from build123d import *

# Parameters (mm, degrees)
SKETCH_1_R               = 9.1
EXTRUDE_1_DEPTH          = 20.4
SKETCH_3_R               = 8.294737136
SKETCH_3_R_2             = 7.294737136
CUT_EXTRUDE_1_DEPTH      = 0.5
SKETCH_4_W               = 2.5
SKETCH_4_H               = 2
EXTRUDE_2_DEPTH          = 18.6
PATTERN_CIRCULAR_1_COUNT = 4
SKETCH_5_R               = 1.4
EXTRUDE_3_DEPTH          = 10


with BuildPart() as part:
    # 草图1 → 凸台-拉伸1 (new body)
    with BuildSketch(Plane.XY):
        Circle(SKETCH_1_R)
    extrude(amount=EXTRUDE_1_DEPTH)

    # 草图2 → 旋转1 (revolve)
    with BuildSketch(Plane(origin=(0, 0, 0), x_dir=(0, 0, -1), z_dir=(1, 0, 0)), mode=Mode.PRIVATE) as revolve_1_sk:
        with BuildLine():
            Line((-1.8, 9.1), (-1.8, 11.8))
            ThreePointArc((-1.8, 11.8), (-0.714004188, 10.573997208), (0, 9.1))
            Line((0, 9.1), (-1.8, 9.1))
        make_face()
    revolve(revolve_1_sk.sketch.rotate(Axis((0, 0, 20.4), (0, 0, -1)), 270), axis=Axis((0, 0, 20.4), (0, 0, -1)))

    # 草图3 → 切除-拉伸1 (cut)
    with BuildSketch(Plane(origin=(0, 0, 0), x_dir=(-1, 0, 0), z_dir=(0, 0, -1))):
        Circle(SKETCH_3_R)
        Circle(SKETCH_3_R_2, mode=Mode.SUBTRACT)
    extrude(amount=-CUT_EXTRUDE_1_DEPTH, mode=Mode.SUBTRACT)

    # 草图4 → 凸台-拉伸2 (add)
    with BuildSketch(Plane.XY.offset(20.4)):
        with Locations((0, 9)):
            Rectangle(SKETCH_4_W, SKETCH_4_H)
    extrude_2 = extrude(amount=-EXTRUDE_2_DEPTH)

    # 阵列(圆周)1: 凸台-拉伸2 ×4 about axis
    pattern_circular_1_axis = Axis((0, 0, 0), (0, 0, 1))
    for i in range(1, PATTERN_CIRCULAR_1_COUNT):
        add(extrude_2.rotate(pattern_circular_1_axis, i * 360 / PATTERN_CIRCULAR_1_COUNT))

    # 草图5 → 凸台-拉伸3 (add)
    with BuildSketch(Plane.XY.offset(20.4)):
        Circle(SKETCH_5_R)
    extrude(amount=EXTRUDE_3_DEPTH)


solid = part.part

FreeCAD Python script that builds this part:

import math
import FreeCAD as App
import Part
import Sketcher
Q = App.Units.Quantity


def add_polygon(sketch, points):
    """Adds a closed chain of lines whose ends are joined by coincident constraints."""
    first, n = sketch.GeometryCount, len(points)
    for a, b in zip(points, points[1:] + points[:1]):
        sketch.addGeometry(Part.LineSegment(App.Vector(*a, 0), App.Vector(*b, 0)), False)
    for i in range(n):
        sketch.addConstraint(Sketcher.Constraint("Coincident", first + i, 2, first + (i + 1) % n, 1))

doc = App.newDocument("Part")
body = doc.addObject("PartDesign::Body", "Body")

sketch1 = body.newObject("Sketcher::SketchObject", "Sketch")
sketch1.AttachmentSupport = (doc.getObject("XY_Plane"), [""])
sketch1.MapMode = "FlatFace"
sketch1.addGeometry(Part.Circle(App.Vector(0, 0, 0), App.Vector(0, 0, 1), 9), False)
sketch1.addConstraint(Sketcher.Constraint("Coincident", 0, 3, -1, 1))
sketch1.addConstraint(Sketcher.Constraint("Diameter", 0, Q("18.2 mm")))
pad1 = body.newObject("PartDesign::Pad", "Pad")
pad1.Profile = sketch1
pad1.Length = 20.4

sketch2 = body.newObject("Sketcher::SketchObject", "Sketch001")
sketch2.AttachmentSupport = (doc.getObject("YZ_Plane"), [""])
sketch2.MapMode = "FlatFace"
sketch2.addGeometry(Part.LineSegment(App.Vector(11.8, 1.8, 0), App.Vector(9.1, 1.8, 0)), False)
sketch2.addGeometry(Part.LineSegment(App.Vector(9.1, 1.8, 0), App.Vector(9.1, 0, 0)), False)
sketch2.addGeometry(Part.ArcOfCircle(Part.Circle(App.Vector(7.2, 5.7, 0), App.Vector(0, 0, 1), 6), math.radians(-72), math.radians(-41)), False)
sketch2.addConstraint(Sketcher.Constraint("Coincident", 0, 2, 1, 1))
sketch2.addConstraint(Sketcher.Constraint("Coincident", 1, 2, 2, 1))
sketch2.addConstraint(Sketcher.Constraint("Coincident", 2, 2, 0, 1))
sketch2.addConstraint(Sketcher.Constraint("Horizontal", 0))
sketch2.addConstraint(Sketcher.Constraint("Vertical", 1))
sketch2.addConstraint(Sketcher.Constraint("PointOnObject", 1, 2, -1))
sketch2.addConstraint(Sketcher.Constraint("Radius", 2, Q("6 mm")))
sketch2.addConstraint(Sketcher.Constraint("DistanceX", 0, 2, 0, 1, Q("2.7 mm")))
sketch2.addConstraint(Sketcher.Constraint("DistanceY", 1, 2, 1, 1, Q("1.8 mm")))
sketch2.addConstraint(Sketcher.Constraint("DistanceX", -1, 1, 0, 2, Q("9.1 mm")))
revolution = body.newObject("PartDesign::Revolution", "Revolution")
revolution.Profile = sketch2
revolution.ReferenceAxis = (sketch2, ["V_Axis"])
revolution.Angle = 360

sketch3 = body.newObject("Sketcher::SketchObject", "Sketch002")
sketch3.AttachmentSupport = (doc.getObject("XY_Plane"), [""])
sketch3.MapMode = "FlatFace"
sketch3.addGeometry(Part.Circle(App.Vector(0, 0, 0), App.Vector(0, 0, 1), 8), False)
sketch3.addGeometry(Part.Circle(App.Vector(0, 0, 0), App.Vector(0, 0, 1), 7), False)
sketch3.addConstraint(Sketcher.Constraint("Coincident", 0, 3, -1, 1))
sketch3.addConstraint(Sketcher.Constraint("Coincident", 1, 3, -1, 1))
sketch3.addConstraint(Sketcher.Constraint("Diameter", 0, Q("16.589474 mm")))
sketch3.addConstraint(Sketcher.Constraint("Diameter", 1, Q("14.589474 mm")))
pocket1 = body.newObject("PartDesign::Pocket", "Pocket")
pocket1.Profile = sketch3
pocket1.Length = 0.5
pocket1.Reversed = True

sketch4 = body.newObject("Sketcher::SketchObject", "Sketch003")
sketch4.AttachmentSupport = (doc.getObject("XY_Plane"), [""])
sketch4.MapMode = "FlatFace"
sketch4.AttachmentOffset = App.Placement(App.Vector(0, 0, 20.4), App.Rotation())
add_polygon(sketch4, [(-1.2, 10), (-1.2, 8), (1.2, 8), (1.2, 10)])
sketch4.addConstraint(Sketcher.Constraint("Vertical", 0))
sketch4.addConstraint(Sketcher.Constraint("Horizontal", 1))
sketch4.addConstraint(Sketcher.Constraint("Vertical", 2))
sketch4.addConstraint(Sketcher.Constraint("Horizontal", 3))
sketch4.addConstraint(Sketcher.Constraint("DistanceY", 0, 2, 0, 1, Q("2 mm")))
sketch4.addConstraint(Sketcher.Constraint("DistanceX", 1, 1, 1, 2, Q("2.5 mm")))
sketch4.addConstraint(Sketcher.Constraint("DistanceY", -1, 1, 0, 2, Q("8 mm")))
sketch4.addConstraint(Sketcher.Constraint("DistanceX", 0, 2, -1, 1, Q("1.25 mm")))
pad2 = body.newObject("PartDesign::Pad", "Pad001")
pad2.Profile = sketch4
pad2.Length = 18.6
pad2.Reversed = True
doc.recompute()

polarpattern = body.newObject("PartDesign::PolarPattern", "PolarPattern")
polarpattern.Originals = [pad2]
polarpattern.Axis = (doc.getObject("Z_Axis"), [""])
polarpattern.Angle = 360
polarpattern.Occurrences = 4
body.Tip = polarpattern

sketch5 = body.newObject("Sketcher::SketchObject", "Sketch004")
sketch5.AttachmentSupport = (doc.getObject("XY_Plane"), [""])
sketch5.MapMode = "FlatFace"
sketch5.AttachmentOffset = App.Placement(App.Vector(0, 0, 20.4), App.Rotation())
sketch5.addGeometry(Part.Circle(App.Vector(0, 0, 0), App.Vector(0, 0, 1), 1.4), False)
sketch5.addConstraint(Sketcher.Constraint("Coincident", 0, 3, -1, 1))
sketch5.addConstraint(Sketcher.Constraint("Diameter", 0, Q("2.8 mm")))
pad3 = body.newObject("PartDesign::Pad", "Pad002")
pad3.Profile = sketch5
pad3.Length = 10

doc.recompute()
